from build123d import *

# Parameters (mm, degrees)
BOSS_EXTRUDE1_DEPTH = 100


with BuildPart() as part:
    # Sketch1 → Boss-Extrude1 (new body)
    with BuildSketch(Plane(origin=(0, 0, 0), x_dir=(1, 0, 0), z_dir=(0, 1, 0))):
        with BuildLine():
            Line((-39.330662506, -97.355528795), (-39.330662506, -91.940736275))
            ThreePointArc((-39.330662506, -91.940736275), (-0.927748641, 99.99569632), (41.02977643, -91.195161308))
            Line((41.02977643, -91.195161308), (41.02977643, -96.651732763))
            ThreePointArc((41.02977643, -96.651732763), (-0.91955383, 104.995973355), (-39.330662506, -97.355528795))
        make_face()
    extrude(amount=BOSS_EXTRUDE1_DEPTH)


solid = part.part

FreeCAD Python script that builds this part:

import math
import FreeCAD as App
import Part
import Sketcher
from FreeCAD import Vector
Q = App.Units.Quantity

doc = App.newDocument("Part")
params = doc.addObject("Spreadsheet::Sheet", "Params")
for row, (alias, value) in enumerate([
    ("sketch1_radius", "100 mm"),
    ("sketch1_radius2", "105 mm"),
    ("pad1_length", "100 mm"),
], start=1):
    params.set(f"A{row}", alias)
    params.set(f"B{row}", "=" + value)
    params.setAlias(f"B{row}", alias)

body = doc.addObject("PartDesign::Body", "Body")

# Sketch on XZ plane
sketch1 = body.newObject("Sketcher::SketchObject", "Sketch")
sketch1.AttachmentSupport = (doc.getObject("XZ_Plane"), [""])
sketch1.MapMode = "FlatFace"
sketch1.addGeometry([
    Part.LineSegment(Vector(-39.330663, 97.355529, 0), Vector(-39.330663, 91.940736, 0)),
    Part.ArcOfCircle(Part.Circle(Vector(0, 0, 0), Vector(0, 0, 1), 100), math.radians(113.160404), math.radians(425.776459)),
    Part.LineSegment(Vector(41.029776, 91.195161, 0), Vector(41.029776, 96.651733, 0)),
    Part.ArcOfCircle(Part.Circle(Vector(0, 0, 0), Vector(0, 0, 1), 105), math.radians(111.998217), math.radians(426.998217)),
], False)
sketch1.addConstraint([
    Sketcher.Constraint("Coincident", 0, 2, 1, 1),
    Sketcher.Constraint("Coincident", 1, 2, 2, 1),
    Sketcher.Constraint("Coincident", 2, 2, 3, 2),
    Sketcher.Constraint("Coincident", 3, 1, 0, 1),
    Sketcher.Constraint("Vertical", 0),
    Sketcher.Constraint("Vertical", 2),
    Sketcher.Constraint("Coincident", 1, 3, -1, 1),
    Sketcher.Constraint("Coincident", 3, 3, -1, 1),
    Sketcher.Constraint("Radius", 1, Q("100 mm")),
    Sketcher.Constraint("Radius", 3, Q("105 mm")),
    Sketcher.Constraint("DistanceY", 2, 1, 2, 2, Q("5.456571 mm")),
    Sketcher.Constraint("DistanceY", 0, 2, 0, 1, Q("5.414793 mm")),
])
sketch1.setExpression("Constraints[8]", "Params.sketch1_radius")
sketch1.setExpression("Constraints[9]", "Params.sketch1_radius2")
pad1 = body.newObject("PartDesign::Pad", "Pad")
pad1.Profile = sketch1
pad1.setExpression("Length", "Params.pad1_length")
pad1.Reversed = True

doc.recompute()
